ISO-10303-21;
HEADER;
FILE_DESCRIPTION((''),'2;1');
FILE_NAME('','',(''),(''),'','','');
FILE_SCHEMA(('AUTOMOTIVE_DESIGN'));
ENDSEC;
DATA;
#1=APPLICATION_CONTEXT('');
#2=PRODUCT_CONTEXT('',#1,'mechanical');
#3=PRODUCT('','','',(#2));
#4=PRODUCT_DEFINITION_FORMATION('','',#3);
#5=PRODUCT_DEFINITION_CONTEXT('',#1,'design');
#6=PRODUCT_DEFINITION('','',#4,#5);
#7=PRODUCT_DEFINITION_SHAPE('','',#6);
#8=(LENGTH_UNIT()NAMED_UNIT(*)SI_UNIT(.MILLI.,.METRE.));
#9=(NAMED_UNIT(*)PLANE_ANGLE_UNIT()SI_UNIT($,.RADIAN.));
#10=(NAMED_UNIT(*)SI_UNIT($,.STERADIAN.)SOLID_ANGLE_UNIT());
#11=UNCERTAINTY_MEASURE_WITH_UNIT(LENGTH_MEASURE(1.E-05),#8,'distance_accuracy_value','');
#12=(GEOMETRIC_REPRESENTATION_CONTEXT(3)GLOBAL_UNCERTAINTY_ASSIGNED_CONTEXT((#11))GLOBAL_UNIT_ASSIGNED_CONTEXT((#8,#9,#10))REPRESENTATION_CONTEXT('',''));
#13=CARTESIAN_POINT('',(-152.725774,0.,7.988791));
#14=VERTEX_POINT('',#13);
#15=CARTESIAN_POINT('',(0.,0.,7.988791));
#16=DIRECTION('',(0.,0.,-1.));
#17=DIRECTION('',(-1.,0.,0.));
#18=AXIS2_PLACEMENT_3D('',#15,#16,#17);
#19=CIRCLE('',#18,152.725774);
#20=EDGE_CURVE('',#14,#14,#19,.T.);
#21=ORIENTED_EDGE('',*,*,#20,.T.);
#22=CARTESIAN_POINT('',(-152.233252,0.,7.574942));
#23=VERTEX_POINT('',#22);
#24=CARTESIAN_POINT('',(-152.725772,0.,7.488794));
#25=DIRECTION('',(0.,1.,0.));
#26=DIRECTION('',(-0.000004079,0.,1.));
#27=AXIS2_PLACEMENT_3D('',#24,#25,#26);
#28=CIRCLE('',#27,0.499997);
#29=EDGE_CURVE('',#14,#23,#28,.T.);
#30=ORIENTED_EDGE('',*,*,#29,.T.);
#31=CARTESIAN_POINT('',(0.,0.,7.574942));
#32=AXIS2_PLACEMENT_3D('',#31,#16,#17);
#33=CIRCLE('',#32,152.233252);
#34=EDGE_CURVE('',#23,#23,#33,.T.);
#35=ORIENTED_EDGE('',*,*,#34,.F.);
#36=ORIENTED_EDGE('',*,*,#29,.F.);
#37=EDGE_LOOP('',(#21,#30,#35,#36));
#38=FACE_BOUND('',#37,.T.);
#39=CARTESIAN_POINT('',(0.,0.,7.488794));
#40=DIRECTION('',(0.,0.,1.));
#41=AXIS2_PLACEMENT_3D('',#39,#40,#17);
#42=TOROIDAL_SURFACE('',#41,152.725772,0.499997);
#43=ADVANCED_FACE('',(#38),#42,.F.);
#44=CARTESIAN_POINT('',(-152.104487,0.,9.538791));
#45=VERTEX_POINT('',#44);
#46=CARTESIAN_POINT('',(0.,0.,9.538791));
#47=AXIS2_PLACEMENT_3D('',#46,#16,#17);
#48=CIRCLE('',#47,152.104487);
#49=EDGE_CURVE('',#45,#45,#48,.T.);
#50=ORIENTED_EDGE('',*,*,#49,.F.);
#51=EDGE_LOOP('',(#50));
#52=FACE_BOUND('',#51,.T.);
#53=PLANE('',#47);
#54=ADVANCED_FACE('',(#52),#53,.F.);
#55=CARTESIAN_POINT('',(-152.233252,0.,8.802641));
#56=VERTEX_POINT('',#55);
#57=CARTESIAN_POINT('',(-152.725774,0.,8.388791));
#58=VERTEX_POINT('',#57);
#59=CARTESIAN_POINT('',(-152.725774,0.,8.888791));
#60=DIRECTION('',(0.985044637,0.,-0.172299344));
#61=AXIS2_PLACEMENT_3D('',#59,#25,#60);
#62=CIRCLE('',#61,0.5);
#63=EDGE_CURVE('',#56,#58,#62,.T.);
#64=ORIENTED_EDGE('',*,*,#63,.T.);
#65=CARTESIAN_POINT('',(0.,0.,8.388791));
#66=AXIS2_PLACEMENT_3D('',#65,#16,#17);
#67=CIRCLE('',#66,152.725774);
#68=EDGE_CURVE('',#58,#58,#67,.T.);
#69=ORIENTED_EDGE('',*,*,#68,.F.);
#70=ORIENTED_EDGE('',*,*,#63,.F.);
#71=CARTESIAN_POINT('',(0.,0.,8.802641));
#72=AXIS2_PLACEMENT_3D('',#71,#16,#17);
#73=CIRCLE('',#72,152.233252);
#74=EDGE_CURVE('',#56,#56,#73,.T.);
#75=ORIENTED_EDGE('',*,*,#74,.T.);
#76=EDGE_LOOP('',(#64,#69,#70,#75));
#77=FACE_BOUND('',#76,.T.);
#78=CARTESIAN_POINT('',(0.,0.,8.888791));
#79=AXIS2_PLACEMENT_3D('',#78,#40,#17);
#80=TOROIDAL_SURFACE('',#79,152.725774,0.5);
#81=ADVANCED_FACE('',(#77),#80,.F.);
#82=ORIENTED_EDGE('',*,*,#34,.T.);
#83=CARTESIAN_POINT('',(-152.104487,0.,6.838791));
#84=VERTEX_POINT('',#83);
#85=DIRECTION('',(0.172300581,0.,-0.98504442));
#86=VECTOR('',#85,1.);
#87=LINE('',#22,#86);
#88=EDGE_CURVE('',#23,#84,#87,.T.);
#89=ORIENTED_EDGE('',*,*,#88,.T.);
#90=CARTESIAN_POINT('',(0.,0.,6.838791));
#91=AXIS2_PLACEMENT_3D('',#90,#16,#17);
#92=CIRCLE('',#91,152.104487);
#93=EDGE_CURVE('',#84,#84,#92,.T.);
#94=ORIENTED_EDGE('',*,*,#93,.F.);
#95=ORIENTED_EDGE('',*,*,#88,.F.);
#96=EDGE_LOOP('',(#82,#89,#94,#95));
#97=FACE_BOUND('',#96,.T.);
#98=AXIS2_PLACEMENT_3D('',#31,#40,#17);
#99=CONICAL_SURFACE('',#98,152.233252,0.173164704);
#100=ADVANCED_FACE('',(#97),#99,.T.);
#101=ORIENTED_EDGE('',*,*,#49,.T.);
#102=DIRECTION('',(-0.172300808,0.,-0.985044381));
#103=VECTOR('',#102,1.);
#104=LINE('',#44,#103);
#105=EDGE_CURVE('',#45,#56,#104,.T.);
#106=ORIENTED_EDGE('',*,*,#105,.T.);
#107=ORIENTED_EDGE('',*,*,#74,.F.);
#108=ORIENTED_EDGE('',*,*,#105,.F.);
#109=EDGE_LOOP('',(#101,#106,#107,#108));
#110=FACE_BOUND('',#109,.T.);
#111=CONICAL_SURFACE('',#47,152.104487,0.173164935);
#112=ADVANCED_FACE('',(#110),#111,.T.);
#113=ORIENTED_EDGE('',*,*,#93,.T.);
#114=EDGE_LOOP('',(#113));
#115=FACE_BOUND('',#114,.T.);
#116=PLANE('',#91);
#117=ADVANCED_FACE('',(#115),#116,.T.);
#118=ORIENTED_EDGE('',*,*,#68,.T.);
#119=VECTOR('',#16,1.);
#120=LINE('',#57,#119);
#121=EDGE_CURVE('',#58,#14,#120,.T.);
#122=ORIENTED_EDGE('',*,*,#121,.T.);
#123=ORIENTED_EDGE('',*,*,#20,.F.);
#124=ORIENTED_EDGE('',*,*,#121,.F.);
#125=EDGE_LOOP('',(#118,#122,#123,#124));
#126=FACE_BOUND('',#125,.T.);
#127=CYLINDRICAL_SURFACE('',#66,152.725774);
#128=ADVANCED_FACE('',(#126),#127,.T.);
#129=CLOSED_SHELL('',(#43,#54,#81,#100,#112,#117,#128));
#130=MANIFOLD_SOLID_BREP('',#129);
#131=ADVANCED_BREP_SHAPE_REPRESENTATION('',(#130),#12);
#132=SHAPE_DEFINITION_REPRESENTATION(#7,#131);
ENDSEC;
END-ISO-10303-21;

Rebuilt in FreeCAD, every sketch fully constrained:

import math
import FreeCAD as App
import Part
import Sketcher

V = App.Vector
Q = App.Units.Quantity

doc = App.newDocument("Part")
body = doc.addObject("PartDesign::Body", "Body")

# Sketch on XZ plane
sketch1 = body.newObject("Sketcher::SketchObject", "Sketch")
sketch1.AttachmentSupport = (doc.getObject("XZ_Plane"), [""])
sketch1.MapMode = "FlatFace"
sketch1.addGeometry([
    Part.LineSegment(V(0, 6.84, 0), V(0, 9.54, 0)),  # 0
    Part.LineSegment(V(0, 9.54, 0), V(-152.1, 9.54, 0)),  # 1
    Part.LineSegment(V(-152.1, 9.54, 0), V(-152.23, 8.8, 0)),  # 2
    Part.ArcOfCircle(Part.Circle(V(-152.73, 8.89, 0), V(0, 0, 1), 0.5), math.radians(-90), math.radians(-10)),  # 3
    Part.LineSegment(V(-152.73, 8.39, 0), V(-152.73, 7.99, 0)),  # 4
    Part.ArcOfCircle(Part.Circle(V(-152.73, 7.49, 0), V(0, 0, 1), 0.5), math.radians(10), math.radians(90)),  # 5
    Part.LineSegment(V(-152.23, 7.57, 0), V(-152.1, 6.84, 0)),  # 6
    Part.LineSegment(V(-152.1, 6.84, 0), V(0, 6.84, 0)),  # 7
], False)
sketch1.addConstraint([
    Sketcher.Constraint("Coincident", 0, 2, 1, 1),
    Sketcher.Constraint("Coincident", 1, 2, 2, 1),
    Sketcher.Constraint("Tangent", 2, 2, 3, 2),
    Sketcher.Constraint("Coincident", 3, 1, 4, 1),
    Sketcher.Constraint("Coincident", 4, 2, 5, 2),
    Sketcher.Constraint("Coincident", 5, 1, 6, 1),
    Sketcher.Constraint("Coincident", 6, 2, 7, 1),
    Sketcher.Constraint("Coincident", 7, 2, 0, 1),
    Sketcher.Constraint("Vertical", 0),
    Sketcher.Constraint("Horizontal", 1),
    Sketcher.Constraint("Vertical", 4),
    Sketcher.Constraint("Horizontal", 7),
    Sketcher.Constraint("PointOnObject", 0, 2, -2),
    Sketcher.Constraint("Vertical", 3, 3, 5, 3),
    Sketcher.Constraint("Vertical", 2, 2, 5, 1),
    Sketcher.Constraint("Vertical", 1, 2, 6, 2),
    Sketcher.Constraint("Equal", 2, 6),
    Sketcher.Constraint("Radius", 3, Q("0.5 mm")),
    Sketcher.Constraint("DistanceY", 0, 1, 0, 2, Q("2.7 mm")),
    Sketcher.Constraint("DistanceY", 4, 2, 4, 1, Q("0.4 mm")),
    Sketcher.Constraint("DistanceY", 3, 3, 0, 2, Q("0.65 mm")),
    Sketcher.Constraint("DistanceY", 5, 1, 2, 2, Q("1.227699 mm")),
    Sketcher.Constraint("DistanceX", 1, 2, 1, 1, Q("152.104487 mm")),
    Sketcher.Constraint("DistanceY", -1, 1, 3, 3, Q("8.888791 mm")),
    Sketcher.Constraint("DistanceX", 3, 1, -1, 1, Q("152.725774 mm")),
])
revolution = body.newObject("PartDesign::Revolution", "Revolution")
revolution.Profile = sketch1
revolution.ReferenceAxis = (sketch1, ["V_Axis"])
revolution.Angle = 360

doc.recompute()
